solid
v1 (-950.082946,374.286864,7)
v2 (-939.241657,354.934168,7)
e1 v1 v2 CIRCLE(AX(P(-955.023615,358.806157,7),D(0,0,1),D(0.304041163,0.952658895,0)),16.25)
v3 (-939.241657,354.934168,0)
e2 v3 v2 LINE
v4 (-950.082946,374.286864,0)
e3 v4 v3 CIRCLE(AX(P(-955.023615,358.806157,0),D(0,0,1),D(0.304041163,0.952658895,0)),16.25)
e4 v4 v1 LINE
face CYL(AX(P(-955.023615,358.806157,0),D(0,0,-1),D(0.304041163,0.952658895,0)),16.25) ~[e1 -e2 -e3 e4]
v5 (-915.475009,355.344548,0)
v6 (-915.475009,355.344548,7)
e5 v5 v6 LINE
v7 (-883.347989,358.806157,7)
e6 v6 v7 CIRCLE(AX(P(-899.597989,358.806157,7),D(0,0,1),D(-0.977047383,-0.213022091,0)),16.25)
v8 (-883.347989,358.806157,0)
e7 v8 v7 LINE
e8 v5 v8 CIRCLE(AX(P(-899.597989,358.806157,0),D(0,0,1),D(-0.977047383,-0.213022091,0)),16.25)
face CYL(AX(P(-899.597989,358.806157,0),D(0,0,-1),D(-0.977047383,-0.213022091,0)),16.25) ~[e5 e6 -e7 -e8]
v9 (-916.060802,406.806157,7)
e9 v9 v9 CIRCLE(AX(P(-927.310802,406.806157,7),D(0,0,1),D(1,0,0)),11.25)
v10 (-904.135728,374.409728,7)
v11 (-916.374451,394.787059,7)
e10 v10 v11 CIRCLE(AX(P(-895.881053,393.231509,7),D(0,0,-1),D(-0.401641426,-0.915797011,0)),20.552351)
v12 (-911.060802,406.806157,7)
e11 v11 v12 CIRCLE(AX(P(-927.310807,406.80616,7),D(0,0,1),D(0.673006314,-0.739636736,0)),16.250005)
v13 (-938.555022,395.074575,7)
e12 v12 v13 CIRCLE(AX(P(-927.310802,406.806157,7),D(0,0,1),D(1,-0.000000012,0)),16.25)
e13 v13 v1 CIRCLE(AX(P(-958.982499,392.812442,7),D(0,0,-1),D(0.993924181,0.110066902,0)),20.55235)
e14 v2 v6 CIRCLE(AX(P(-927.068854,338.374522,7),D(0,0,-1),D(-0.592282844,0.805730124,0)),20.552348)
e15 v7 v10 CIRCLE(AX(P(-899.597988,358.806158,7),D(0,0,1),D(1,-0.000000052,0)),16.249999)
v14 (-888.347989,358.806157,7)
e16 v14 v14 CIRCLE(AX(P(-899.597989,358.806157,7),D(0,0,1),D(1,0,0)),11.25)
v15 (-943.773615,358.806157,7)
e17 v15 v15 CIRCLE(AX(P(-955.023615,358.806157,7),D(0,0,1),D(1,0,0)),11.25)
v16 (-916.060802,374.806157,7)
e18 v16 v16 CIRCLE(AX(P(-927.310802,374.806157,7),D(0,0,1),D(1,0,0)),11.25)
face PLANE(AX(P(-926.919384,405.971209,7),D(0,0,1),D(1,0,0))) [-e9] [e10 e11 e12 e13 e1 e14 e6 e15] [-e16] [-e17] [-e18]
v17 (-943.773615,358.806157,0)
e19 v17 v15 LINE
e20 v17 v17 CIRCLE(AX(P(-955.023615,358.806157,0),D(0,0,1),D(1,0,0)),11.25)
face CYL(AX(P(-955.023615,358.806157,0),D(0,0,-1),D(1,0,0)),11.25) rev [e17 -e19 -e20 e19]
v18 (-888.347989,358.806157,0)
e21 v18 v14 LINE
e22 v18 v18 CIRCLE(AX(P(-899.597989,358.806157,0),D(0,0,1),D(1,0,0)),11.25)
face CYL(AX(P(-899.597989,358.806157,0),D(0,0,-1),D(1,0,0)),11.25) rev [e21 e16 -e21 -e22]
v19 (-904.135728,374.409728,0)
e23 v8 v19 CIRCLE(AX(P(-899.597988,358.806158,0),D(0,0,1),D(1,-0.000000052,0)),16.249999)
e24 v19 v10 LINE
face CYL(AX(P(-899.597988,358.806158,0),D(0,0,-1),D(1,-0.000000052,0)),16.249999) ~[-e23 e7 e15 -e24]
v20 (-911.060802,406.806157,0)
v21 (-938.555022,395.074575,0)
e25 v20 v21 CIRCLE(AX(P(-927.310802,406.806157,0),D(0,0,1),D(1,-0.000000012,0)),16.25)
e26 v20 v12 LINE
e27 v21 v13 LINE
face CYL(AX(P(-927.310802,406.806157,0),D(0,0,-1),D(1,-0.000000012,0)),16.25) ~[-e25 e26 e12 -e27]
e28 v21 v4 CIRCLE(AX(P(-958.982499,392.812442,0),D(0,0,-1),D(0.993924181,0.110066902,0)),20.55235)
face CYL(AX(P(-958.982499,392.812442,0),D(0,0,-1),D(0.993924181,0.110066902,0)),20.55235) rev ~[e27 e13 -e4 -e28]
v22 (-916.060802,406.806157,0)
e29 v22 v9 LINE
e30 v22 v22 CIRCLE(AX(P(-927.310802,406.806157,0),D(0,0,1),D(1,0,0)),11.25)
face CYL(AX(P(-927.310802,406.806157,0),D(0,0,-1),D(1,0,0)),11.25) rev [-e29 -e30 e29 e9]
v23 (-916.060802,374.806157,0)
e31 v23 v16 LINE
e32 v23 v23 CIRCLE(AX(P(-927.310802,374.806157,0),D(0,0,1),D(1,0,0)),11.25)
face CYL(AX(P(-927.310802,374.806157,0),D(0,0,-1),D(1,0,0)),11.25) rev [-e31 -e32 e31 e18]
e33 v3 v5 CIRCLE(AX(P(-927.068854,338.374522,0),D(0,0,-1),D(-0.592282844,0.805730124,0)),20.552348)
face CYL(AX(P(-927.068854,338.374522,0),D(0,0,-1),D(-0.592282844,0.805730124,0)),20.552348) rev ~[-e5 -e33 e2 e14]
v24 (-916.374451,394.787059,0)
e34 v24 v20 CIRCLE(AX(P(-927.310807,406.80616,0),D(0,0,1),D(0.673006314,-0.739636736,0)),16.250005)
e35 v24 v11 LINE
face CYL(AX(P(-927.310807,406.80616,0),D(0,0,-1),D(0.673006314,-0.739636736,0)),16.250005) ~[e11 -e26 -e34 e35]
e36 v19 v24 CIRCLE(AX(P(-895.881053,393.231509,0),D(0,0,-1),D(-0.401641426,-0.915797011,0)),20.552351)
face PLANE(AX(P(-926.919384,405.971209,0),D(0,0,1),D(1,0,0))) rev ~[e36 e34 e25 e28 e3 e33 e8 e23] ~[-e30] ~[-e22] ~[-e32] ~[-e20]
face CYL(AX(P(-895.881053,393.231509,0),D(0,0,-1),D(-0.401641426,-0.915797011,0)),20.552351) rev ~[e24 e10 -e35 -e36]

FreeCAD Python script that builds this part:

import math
import FreeCAD as App
import Part
import Sketcher

V = App.Vector

doc = App.newDocument("Part")
params = doc.addObject("Spreadsheet::Sheet", "Params")
for row, (alias, value) in enumerate([
    ("sketch1_diameter", "22.5 mm"),
    ("sketch1_diameter2", "22.5 mm"),
    ("sketch1_diameter3", "22.5 mm"),
    ("sketch1_diameter4", "22.5 mm"),
    ("sketch1_radius", "16.25 mm"),
    ("pad1_length", "7 mm"),
], start=1):
    params.set(f"A{row}", alias)
    params.set(f"B{row}", "=" + value)
    params.setAlias(f"B{row}", alias)

body = doc.addObject("PartDesign::Body", "Body")

# Sketch on XY plane
sketch1 = body.newObject("Sketcher::SketchObject", "Sketch")
sketch1.AttachmentSupport = (doc.getObject("XY_Plane"), [""])
sketch1.MapMode = "FlatFace"
sketch1.addGeometry(Part.ArcOfCircle(Part.Circle(V(-927.310802, 406.806157, 0), V(0, 0, 1), 16.25), math.radians(-0.000001), math.radians(226.215175)), False)
sketch1.addGeometry(Part.ArcOfCircle(Part.Circle(V(-958.982499, 392.812442, 0), V(0, 0, 1), 20.552349), math.radians(-64.340708), math.radians(6.319172)), False)
sketch1.addGeometry(Part.ArcOfCircle(Part.Circle(V(-955.023615, 358.806157, 0), V(0, 0, 1), 16.25), math.radians(72.299513), math.radians(346.215174)), False)
sketch1.addGeometry(Part.ArcOfCircle(Part.Circle(V(-927.068854, 338.374522, 0), V(0, 0, 1), 20.552348), math.radians(55.659288), math.radians(126.319174)), False)
sketch1.addGeometry(Part.ArcOfCircle(Part.Circle(V(-899.597989, 358.806157, 0), V(0, 0, 1), 16.25), math.radians(-167.700486), math.radians(0)), False)
sketch1.addGeometry(Part.ArcOfCircle(Part.Circle(V(-899.597988, 358.806158, 0), V(0, 0, 1), 16.249999), math.radians(-0.000003), math.radians(106.21518)), False)
sketch1.addGeometry(Part.ArcOfCircle(Part.Circle(V(-895.881053, 393.231509, 0), V(0, 0, 1), 20.552351), math.radians(175.659292), math.radians(246.319168)), False)
sketch1.addGeometry(Part.ArcOfCircle(Part.Circle(V(-927.310807, 406.80616, 0), V(0, 0, 1), 16.250005), math.radians(-47.70048), math.radians(-0.000009)), False)
sketch1.addGeometry(Part.Circle(V(-955.023615, 358.806157, 0), V(0, 0, 1), 11.25), False)
sketch1.addGeometry(Part.Circle(V(-899.597989, 358.806157, 0), V(0, 0, 1), 11.25), False)
sketch1.addGeometry(Part.Circle(V(-927.310802, 374.806157, 0), V(0, 0, 1), 11.25), False)
sketch1.addGeometry(Part.Circle(V(-927.310802, 406.806157, 0), V(0, 0, 1), 11.25), False)
sketch1.addConstraint(Sketcher.Constraint("Coincident", 0, 2, 1, 2))
sketch1.addConstraint(Sketcher.Constraint("Coincident", 1, 1, 2, 1))
sketch1.addConstraint(Sketcher.Constraint("Coincident", 2, 2, 3, 2))
sketch1.addConstraint(Sketcher.Constraint("Coincident", 3, 1, 4, 1))
sketch1.addConstraint(Sketcher.Constraint("Coincident", 4, 2, 5, 1))
sketch1.addConstraint(Sketcher.Constraint("Coincident", 5, 2, 6, 2))
sketch1.addConstraint(Sketcher.Constraint("Coincident", 6, 1, 7, 1))
sketch1.addConstraint(Sketcher.Constraint("Coincident", 7, 2, 0, 1))
sketch1.addConstraint(Sketcher.Constraint("Coincident", 5, 3, 4, 3))
sketch1.addConstraint(Sketcher.Constraint("Coincident", 7, 3, 0, 3))
sketch1.addConstraint(Sketcher.Constraint("Coincident", 8, 3, 2, 3))
sketch1.addConstraint(Sketcher.Constraint("Coincident", 9, 3, 4, 3))
sketch1.addConstraint(Sketcher.Constraint("Coincident", 11, 3, 0, 3))
sketch1.addConstraint(Sketcher.Constraint("Diameter", 8, 22.5))
sketch1.addConstraint(Sketcher.Constraint("Diameter", 9, 22.5))
sketch1.addConstraint(Sketcher.Constraint("Diameter", 10, 22.5))
sketch1.addConstraint(Sketcher.Constraint("Diameter", 11, 22.5))
sketch1.addConstraint(Sketcher.Constraint("Radius", 0, 16.25))
sketch1.addConstraint(Sketcher.Constraint("Radius", 2, 16.25))
sketch1.addConstraint(Sketcher.Constraint("Radius", 4, 16.25))
sketch1.addConstraint(Sketcher.Constraint("DistanceY", 2, 3, 0, 3, 48.0))
sketch1.addConstraint(Sketcher.Constraint("DistanceY", 4, 3, 0, 3, 48.0))
sketch1.addConstraint(Sketcher.Constraint("DistanceY", 2, 3, 10, 3, 16.0))
sketch1.addConstraint(Sketcher.Constraint("Radius", 1, 20.552349))
sketch1.addConstraint(Sketcher.Constraint("Radius", 3, 20.552348))
sketch1.addConstraint(Sketcher.Constraint("Radius", 6, 20.552351))
sketch1.addConstraint(Sketcher.Constraint("DistanceX", 1, 3, -1, 1, 958.982499))
sketch1.addConstraint(Sketcher.Constraint("DistanceX", 10, 3, -1, 1, 927.310802))
sketch1.addConstraint(Sketcher.Constraint("DistanceX", 11, 3, -1, 1, 927.310802))
sketch1.addConstraint(Sketcher.Constraint("DistanceX", 3, 3, 6, 3, 31.187801))
sketch1.addConstraint(Sketcher.Constraint("DistanceY", 6, 1, 0, 3, 12.019098))
sketch1.addConstraint(Sketcher.Constraint("DistanceX", 6, 1, 6, 3, 20.493398))
sketch1.addConstraint(Sketcher.Constraint("DistanceY", -1, 1, 1, 3, 392.812442))
sketch1.addConstraint(Sketcher.Constraint("DistanceY", -1, 1, 3, 3, 338.374522))
sketch1.addConstraint(Sketcher.Constraint("DistanceX", 4, 3, -1, 1, 899.597989))
sketch1.addConstraint(Sketcher.Constraint("DistanceY", -1, 1, 6, 3, 393.231509))
sketch1.addConstraint(Sketcher.Constraint("DistanceY", -1, 1, 2, 2, 354.934168))
sketch1.addConstraint(Sketcher.Constraint("DistanceY", 3, 1, 4, 2, 3.461609))
sketch1.addConstraint(Sketcher.Constraint("DistanceY", -1, 1, 7, 2, 406.806157))
sketch1.setExpression("Constraints[13]", "Params.sketch1_diameter")
sketch1.setExpression("Constraints[14]", "Params.sketch1_diameter2")
sketch1.setExpression("Constraints[15]", "Params.sketch1_diameter3")
sketch1.setExpression("Constraints[16]", "Params.sketch1_diameter4")
sketch1.setExpression("Constraints[17]", "Params.sketch1_radius")
pad1 = body.newObject("PartDesign::Pad", "Pad")
pad1.Profile = sketch1
pad1.setExpression("Length", "Params.pad1_length")

doc.recompute()
